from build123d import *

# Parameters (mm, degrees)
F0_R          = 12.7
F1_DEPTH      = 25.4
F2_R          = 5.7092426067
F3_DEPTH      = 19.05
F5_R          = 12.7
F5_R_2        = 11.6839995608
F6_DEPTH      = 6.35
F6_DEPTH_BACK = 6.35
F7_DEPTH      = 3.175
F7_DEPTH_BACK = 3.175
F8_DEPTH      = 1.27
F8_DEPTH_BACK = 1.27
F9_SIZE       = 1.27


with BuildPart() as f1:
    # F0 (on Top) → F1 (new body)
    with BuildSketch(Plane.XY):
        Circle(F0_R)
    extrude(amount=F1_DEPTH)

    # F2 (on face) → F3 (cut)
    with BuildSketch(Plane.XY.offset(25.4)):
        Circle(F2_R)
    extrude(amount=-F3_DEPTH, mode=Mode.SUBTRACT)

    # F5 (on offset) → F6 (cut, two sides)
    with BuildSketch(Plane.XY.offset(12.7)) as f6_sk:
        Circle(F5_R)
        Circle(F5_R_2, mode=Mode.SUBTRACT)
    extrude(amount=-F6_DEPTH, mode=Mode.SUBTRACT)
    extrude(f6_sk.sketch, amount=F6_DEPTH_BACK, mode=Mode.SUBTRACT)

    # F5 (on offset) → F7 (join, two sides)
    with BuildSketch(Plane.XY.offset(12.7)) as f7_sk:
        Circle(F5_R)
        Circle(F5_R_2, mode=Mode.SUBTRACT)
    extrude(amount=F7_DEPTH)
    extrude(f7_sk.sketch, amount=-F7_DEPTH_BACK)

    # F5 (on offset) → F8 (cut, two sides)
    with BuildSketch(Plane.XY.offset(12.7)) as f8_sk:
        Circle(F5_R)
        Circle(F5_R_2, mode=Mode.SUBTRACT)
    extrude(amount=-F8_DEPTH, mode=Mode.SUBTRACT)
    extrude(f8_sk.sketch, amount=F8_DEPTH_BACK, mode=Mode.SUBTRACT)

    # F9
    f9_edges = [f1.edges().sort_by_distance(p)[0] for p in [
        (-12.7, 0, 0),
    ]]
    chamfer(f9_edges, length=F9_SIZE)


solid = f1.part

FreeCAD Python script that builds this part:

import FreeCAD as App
import Part
import Sketcher
Q = App.Units.Quantity


def edges_at(feature, points):
    """Names of the edges that pass closest to the given points."""
    edges = feature.Shape.Edges
    near = lambda p: min(range(len(edges)), key=lambda i: edges[i].distToShape(Part.Vertex(*p))[0])
    return sorted({f"Edge{near(p) + 1}" for p in points})

doc = App.newDocument("Part")
body = doc.addObject("PartDesign::Body", "Body")

# Sketch on XY plane
sketch1 = body.newObject("Sketcher::SketchObject", "Sketch")
sketch1.AttachmentSupport = (doc.getObject("XY_Plane"), [""])
sketch1.MapMode = "FlatFace"
sketch1.addGeometry(Part.Circle(App.Vector(0, 0, 0), App.Vector(0, 0, 1), 13), False)
sketch1.addConstraint([
    Sketcher.Constraint("Coincident", 0, 3, -1, 1),
    Sketcher.Constraint("Diameter", 0, Q("1 in")),
])
pad1 = body.newObject("PartDesign::Pad", "Pad")
pad1.Profile = sketch1
pad1.Length = Q("1 in")

# Sketch on XY plane
sketch2 = body.newObject("Sketcher::SketchObject", "Sketch001")
sketch2.AttachmentSupport = (doc.getObject("XY_Plane"), [""])
sketch2.MapMode = "FlatFace"
sketch2.AttachmentOffset = App.Placement(App.Vector(0, 0, 1 * 25.4), App.Rotation())
sketch2.addGeometry(Part.Circle(App.Vector(0, 0, 0), App.Vector(0, 0, 1), 6), False)
sketch2.addConstraint([
    Sketcher.Constraint("Coincident", 0, 3, -1, 1),
    Sketcher.Constraint("Diameter", 0, Q("11.418485 mm")),
])
pocket1 = body.newObject("PartDesign::Pocket", "Pocket")
pocket1.Profile = sketch2
pocket1.Length = Q("0.75 in")

# Sketch on XY plane
sketch3 = body.newObject("Sketcher::SketchObject", "Sketch002")
sketch3.AttachmentSupport = (doc.getObject("XY_Plane"), [""])
sketch3.MapMode = "FlatFace"
sketch3.AttachmentOffset = App.Placement(App.Vector(0, 0, 0.5 * 25.4), App.Rotation())
sketch3.addGeometry([
    Part.Circle(App.Vector(0, 0, 0), App.Vector(0, 0, 1), 13),
    Part.Circle(App.Vector(0, 0, 0), App.Vector(0, 0, 1), 12),
], False)
sketch3.addConstraint([
    Sketcher.Constraint("Coincident", 0, 3, -1, 1),
    Sketcher.Constraint("Coincident", 1, 3, -1, 1),
    Sketcher.Constraint("Diameter", 0, Q("1 in")),
    Sketcher.Constraint("Diameter", 1, Q("0.92 in")),
])
pocket2 = body.newObject("PartDesign::Pocket", "Pocket001")
pocket2.Profile = sketch3
pocket2.Type = "TwoLengths"
pocket2.Length = Q("0.25 in")
pocket2.Length2 = Q("0.25 in")

# Sketch on XY plane
sketch4 = body.newObject("Sketcher::SketchObject", "Sketch003")
sketch4.AttachmentSupport = (doc.getObject("XY_Plane"), [""])
sketch4.MapMode = "FlatFace"
sketch4.AttachmentOffset = App.Placement(App.Vector(0, 0, 0.5 * 25.4), App.Rotation())
sketch4.addGeometry([
    Part.Circle(App.Vector(0, 0, 0), App.Vector(0, 0, 1), 13),
    Part.Circle(App.Vector(0, 0, 0), App.Vector(0, 0, 1), 12),
], False)
sketch4.addConstraint([
    Sketcher.Constraint("Coincident", 0, 3, -1, 1),
    Sketcher.Constraint("Coincident", 1, 3, -1, 1),
    Sketcher.Constraint("Diameter", 0, Q("1 in")),
    Sketcher.Constraint("Diameter", 1, Q("0.92 in")),
])
pad2 = body.newObject("PartDesign::Pad", "Pad001")
pad2.Profile = sketch4
pad2.Type = "TwoLengths"
pad2.Length = Q("0.125 in")
pad2.Length2 = Q("0.125 in")

# Sketch on XY plane
sketch5 = body.newObject("Sketcher::SketchObject", "Sketch004")
sketch5.AttachmentSupport = (doc.getObject("XY_Plane"), [""])
sketch5.MapMode = "FlatFace"
sketch5.AttachmentOffset = App.Placement(App.Vector(0, 0, 0.5 * 25.4), App.Rotation())
sketch5.addGeometry([
    Part.Circle(App.Vector(0, 0, 0), App.Vector(0, 0, 1), 13),
    Part.Circle(App.Vector(0, 0, 0), App.Vector(0, 0, 1), 12),
], False)
sketch5.addConstraint([
    Sketcher.Constraint("Coincident", 0, 3, -1, 1),
    Sketcher.Constraint("Coincident", 1, 3, -1, 1),
    Sketcher.Constraint("Diameter", 0, Q("1 in")),
    Sketcher.Constraint("Diameter", 1, Q("0.92 in")),
])
pocket3 = body.newObject("PartDesign::Pocket", "Pocket002")
pocket3.Profile = sketch5
pocket3.Type = "TwoLengths"
pocket3.Length = Q("0.05 in")
pocket3.Length2 = Q("0.05 in")
doc.recompute()

chamfer = body.newObject("PartDesign::Chamfer", "Chamfer")
chamfer.Base = (pocket3, edges_at(pocket3, [(-12.7, 0, 0)]))
chamfer.Size = Q("0.05 in")

doc.recompute()
